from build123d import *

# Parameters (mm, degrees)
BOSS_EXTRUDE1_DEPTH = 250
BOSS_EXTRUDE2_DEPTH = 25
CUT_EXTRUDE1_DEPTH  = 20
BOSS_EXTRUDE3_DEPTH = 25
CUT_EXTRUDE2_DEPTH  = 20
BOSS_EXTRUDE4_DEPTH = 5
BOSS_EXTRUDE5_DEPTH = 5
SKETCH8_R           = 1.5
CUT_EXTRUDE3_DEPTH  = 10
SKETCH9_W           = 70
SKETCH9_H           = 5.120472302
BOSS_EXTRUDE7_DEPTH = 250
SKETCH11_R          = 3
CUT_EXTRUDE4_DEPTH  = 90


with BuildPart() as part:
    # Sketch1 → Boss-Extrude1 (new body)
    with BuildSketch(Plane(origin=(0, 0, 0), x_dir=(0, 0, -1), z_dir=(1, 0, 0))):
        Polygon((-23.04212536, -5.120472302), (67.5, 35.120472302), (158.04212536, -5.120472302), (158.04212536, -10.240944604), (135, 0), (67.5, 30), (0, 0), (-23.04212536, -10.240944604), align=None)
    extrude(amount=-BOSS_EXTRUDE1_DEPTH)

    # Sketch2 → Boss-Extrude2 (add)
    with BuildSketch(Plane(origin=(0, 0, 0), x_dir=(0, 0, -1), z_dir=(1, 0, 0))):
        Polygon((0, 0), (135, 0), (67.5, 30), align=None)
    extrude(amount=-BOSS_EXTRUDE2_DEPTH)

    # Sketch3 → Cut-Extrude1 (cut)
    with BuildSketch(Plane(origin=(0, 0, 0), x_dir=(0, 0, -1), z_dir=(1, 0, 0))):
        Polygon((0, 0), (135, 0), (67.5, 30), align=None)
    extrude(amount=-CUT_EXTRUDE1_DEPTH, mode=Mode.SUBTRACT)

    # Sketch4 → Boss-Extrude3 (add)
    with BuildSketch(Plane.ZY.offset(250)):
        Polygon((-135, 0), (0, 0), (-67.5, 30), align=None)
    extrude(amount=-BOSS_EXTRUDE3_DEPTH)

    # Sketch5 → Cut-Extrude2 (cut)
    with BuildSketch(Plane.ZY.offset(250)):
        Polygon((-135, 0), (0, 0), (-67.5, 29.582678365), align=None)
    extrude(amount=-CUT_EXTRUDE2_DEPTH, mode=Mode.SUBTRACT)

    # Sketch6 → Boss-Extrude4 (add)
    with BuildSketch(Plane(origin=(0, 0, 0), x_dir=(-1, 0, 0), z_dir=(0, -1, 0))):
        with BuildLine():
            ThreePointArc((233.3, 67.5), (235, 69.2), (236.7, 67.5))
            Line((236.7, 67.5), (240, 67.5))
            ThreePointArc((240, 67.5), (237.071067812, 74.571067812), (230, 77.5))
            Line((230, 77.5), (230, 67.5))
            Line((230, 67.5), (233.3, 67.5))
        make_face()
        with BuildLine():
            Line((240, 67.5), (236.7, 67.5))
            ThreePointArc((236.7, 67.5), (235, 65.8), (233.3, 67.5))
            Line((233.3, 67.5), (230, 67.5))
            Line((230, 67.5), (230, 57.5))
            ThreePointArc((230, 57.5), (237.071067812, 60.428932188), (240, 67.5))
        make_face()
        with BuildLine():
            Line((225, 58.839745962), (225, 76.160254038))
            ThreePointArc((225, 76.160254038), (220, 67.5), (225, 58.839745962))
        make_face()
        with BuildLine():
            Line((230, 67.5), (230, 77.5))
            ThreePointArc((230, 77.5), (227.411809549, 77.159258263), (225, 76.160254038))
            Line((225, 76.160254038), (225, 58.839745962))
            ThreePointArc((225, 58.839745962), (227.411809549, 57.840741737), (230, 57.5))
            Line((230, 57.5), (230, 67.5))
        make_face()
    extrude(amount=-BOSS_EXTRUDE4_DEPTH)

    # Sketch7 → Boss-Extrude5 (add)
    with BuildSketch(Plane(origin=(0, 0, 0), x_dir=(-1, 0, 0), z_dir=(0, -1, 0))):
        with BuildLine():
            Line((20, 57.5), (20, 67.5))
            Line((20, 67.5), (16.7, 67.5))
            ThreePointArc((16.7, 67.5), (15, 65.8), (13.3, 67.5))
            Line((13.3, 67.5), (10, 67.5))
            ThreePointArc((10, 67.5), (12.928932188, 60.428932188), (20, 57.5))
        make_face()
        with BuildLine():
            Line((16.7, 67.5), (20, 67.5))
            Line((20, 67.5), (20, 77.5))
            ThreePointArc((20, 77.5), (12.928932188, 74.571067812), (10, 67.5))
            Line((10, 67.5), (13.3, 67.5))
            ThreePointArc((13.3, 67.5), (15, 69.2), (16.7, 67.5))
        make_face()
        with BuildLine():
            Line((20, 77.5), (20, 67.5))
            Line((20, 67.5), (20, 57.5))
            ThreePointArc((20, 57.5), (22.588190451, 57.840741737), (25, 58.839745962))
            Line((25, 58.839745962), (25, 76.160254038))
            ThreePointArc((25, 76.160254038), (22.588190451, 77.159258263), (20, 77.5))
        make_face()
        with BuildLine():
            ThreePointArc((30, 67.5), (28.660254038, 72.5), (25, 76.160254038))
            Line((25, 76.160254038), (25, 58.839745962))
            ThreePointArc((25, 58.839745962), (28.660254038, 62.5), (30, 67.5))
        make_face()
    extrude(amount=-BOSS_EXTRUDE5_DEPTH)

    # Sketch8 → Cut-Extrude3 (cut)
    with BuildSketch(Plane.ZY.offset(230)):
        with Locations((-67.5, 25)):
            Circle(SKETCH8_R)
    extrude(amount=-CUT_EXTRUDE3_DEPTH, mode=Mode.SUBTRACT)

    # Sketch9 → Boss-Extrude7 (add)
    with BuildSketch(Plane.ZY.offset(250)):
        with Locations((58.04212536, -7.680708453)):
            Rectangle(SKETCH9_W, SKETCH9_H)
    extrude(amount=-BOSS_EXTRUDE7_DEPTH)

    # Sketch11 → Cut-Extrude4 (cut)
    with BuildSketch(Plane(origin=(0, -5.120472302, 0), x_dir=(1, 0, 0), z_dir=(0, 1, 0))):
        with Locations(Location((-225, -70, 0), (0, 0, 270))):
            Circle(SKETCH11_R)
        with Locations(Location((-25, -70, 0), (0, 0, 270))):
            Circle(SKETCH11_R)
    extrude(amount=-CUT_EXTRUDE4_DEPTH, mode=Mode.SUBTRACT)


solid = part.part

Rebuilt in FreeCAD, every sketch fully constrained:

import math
import FreeCAD as App
import Part
import Sketcher
Q = App.Units.Quantity


def add_polygon(sketch, points):
    """Adds a closed chain of lines whose ends are joined by coincident constraints."""
    first, n = sketch.GeometryCount, len(points)
    for a, b in zip(points, points[1:] + points[:1]):
        sketch.addGeometry(Part.LineSegment(App.Vector(*a, 0), App.Vector(*b, 0)), False)
    for i in range(n):
        sketch.addConstraint(Sketcher.Constraint("Coincident", first + i, 2, first + (i + 1) % n, 1))

doc = App.newDocument("Part")
body = doc.addObject("PartDesign::Body", "Body")

sketch1 = body.newObject("Sketcher::SketchObject", "Sketch")
sketch1.AttachmentSupport = (doc.getObject("YZ_Plane"), [""])
sketch1.MapMode = "FlatFace"
add_polygon(sketch1, [(35, -68), (-5, 23), (-10, 23), (0, 0), (30, -68), (0, -135), (-10, -158), (-5, -158)])
sketch1.addConstraint([
    Sketcher.Constraint("Horizontal", 1),
    Sketcher.Constraint("Horizontal", 6),
    Sketcher.Constraint("Coincident", 2, 2, -1, 1),
    Sketcher.Constraint("PointOnObject", 4, 2, -2),
    Sketcher.Constraint("Parallel", 0, 2),
    Sketcher.Constraint("Parallel", 2, 3),
    Sketcher.Constraint("Parallel", 4, 5),
    Sketcher.Constraint("Parallel", 5, 7),
    Sketcher.Constraint("Horizontal", 3, 2, 7, 2),
    Sketcher.Constraint("Vertical", 1, 2, 5, 2),
    Sketcher.Constraint("Equal", 3, 4),
    Sketcher.Constraint("DistanceX", -1, 1, 3, 2, Q("30 mm")),
    Sketcher.Constraint("DistanceY", 4, 2, -1, 1, Q("135 mm")),
    Sketcher.Constraint("Distance", 2, Q("25.215402 mm")),
    Sketcher.Constraint("DistanceX", 1, 2, 1, 1, Q("5.120472 mm")),
])
pad1 = body.newObject("PartDesign::Pad", "Pad")
pad1.Profile = sketch1
pad1.Length = 250
pad1.Reversed = True

sketch2 = body.newObject("Sketcher::SketchObject", "Sketch001")
sketch2.AttachmentSupport = (doc.getObject("YZ_Plane"), [""])
sketch2.MapMode = "FlatFace"
add_polygon(sketch2, [(0, 0), (0, -135), (30, -68)])
sketch2.addConstraint([
    Sketcher.Constraint("Vertical", 0),
    Sketcher.Constraint("Coincident", 2, 2, -1, 1),
    Sketcher.Constraint("Equal", 1, 2),
    Sketcher.Constraint("DistanceY", 0, 2, 0, 1, Q("135 mm")),
    Sketcher.Constraint("DistanceX", -1, 1, 1, 2, Q("30 mm")),
])
pad2 = body.newObject("PartDesign::Pad", "Pad001")
pad2.Profile = sketch2
pad2.Length = 25
pad2.Reversed = True

sketch3 = body.newObject("Sketcher::SketchObject", "Sketch002")
sketch3.AttachmentSupport = (doc.getObject("YZ_Plane"), [""])
sketch3.MapMode = "FlatFace"
add_polygon(sketch3, [(0, 0), (0, -135), (30, -68)])
sketch3.addConstraint([
    Sketcher.Constraint("Vertical", 0),
    Sketcher.Constraint("Coincident", 2, 2, -1, 1),
    Sketcher.Constraint("Equal", 1, 2),
    Sketcher.Constraint("DistanceY", 0, 2, 0, 1, Q("135 mm")),
    Sketcher.Constraint("DistanceX", -1, 1, 1, 2, Q("30 mm")),
])
pocket1 = body.newObject("PartDesign::Pocket", "Pocket")
pocket1.Profile = sketch3
pocket1.Length = 20

sketch4 = body.newObject("Sketcher::SketchObject", "Sketch003")
sketch4.AttachmentSupport = (doc.getObject("YZ_Plane"), [""])
sketch4.MapMode = "FlatFace"
sketch4.AttachmentOffset = App.Placement(App.Vector(0, 0, -250), App.Rotation())
add_polygon(sketch4, [(0, -135), (0, 0), (30, -68)])
sketch4.addConstraint([
    Sketcher.Constraint("Vertical", 0),
    Sketcher.Constraint("Coincident", 0, 2, -1, 1),
    Sketcher.Constraint("Equal", 1, 2),
    Sketcher.Constraint("DistanceY", 0, 1, 0, 2, Q("135 mm")),
    Sketcher.Constraint("DistanceX", -1, 1, 1, 2, Q("30 mm")),
])
pad3 = body.newObject("PartDesign::Pad", "Pad002")
pad3.Profile = sketch4
pad3.Length = 25

sketch5 = body.newObject("Sketcher::SketchObject", "Sketch004")
sketch5.AttachmentSupport = (doc.getObject("YZ_Plane"), [""])
sketch5.MapMode = "FlatFace"
sketch5.AttachmentOffset = App.Placement(App.Vector(0, 0, -250), App.Rotation())
add_polygon(sketch5, [(0, -135), (0, 0), (30, -68)])
sketch5.addConstraint([
    Sketcher.Constraint("Vertical", 0),
    Sketcher.Constraint("Coincident", 0, 2, -1, 1),
    Sketcher.Constraint("Equal", 1, 2),
    Sketcher.Constraint("DistanceY", 0, 1, 0, 2, Q("135 mm")),
    Sketcher.Constraint("Distance", 1, Q("73.69793 mm")),
])
pocket2 = body.newObject("PartDesign::Pocket", "Pocket001")
pocket2.Profile = sketch5
pocket2.Length = 20
pocket2.Reversed = True

sketch6 = body.newObject("Sketcher::SketchObject", "Sketch005")
sketch6.AttachmentSupport = (doc.getObject("XZ_Plane"), [""])
sketch6.MapMode = "FlatFace"
sketch6.addGeometry([
    Part.ArcOfCircle(Part.Circle(App.Vector(-230, -67.5, 0), App.Vector(0, 0, 1), 10), math.radians(90), math.radians(180)),
    Part.ArcOfCircle(Part.Circle(App.Vector(-230, -67.5, 0), App.Vector(0, 0, 1), 10), math.radians(180), math.radians(270)),
    Part.ArcOfCircle(Part.Circle(App.Vector(-230, -67.5, 0), App.Vector(0, 0, 1), 10), math.radians(-90), math.radians(-60)),
    Part.ArcOfCircle(Part.Circle(App.Vector(-230, -67.5, 0), App.Vector(0, 0, 1), 10), math.radians(-60), math.radians(60)),
    Part.ArcOfCircle(Part.Circle(App.Vector(-230, -67.5, 0), App.Vector(0, 0, 1), 10), math.radians(60), math.radians(90)),
    Part.Circle(App.Vector(-235, -67.5, 0), App.Vector(0, 0, 1), 1.7),
], False)
sketch6.addConstraint([
    Sketcher.Constraint("Tangent", 0, 2, 1, 1),
    Sketcher.Constraint("Tangent", 1, 2, 2, 1),
    Sketcher.Constraint("Tangent", 2, 2, 3, 1),
    Sketcher.Constraint("Tangent", 3, 2, 4, 1),
    Sketcher.Constraint("Tangent", 4, 2, 0, 1),
    Sketcher.Constraint("Coincident", 2, 3, 0, 3),
    Sketcher.Constraint("Horizontal", 4, 3, 5, 3),
    Sketcher.Constraint("Horizontal", 5, 3, 0, 2),
    Sketcher.Constraint("Vertical", 4, 3, 1, 2),
    Sketcher.Constraint("Vertical", 2, 2, 3, 2),
    Sketcher.Constraint("Vertical", 1, 2, 4, 2),
    Sketcher.Constraint("Radius", 0, Q("10 mm")),
    Sketcher.Constraint("Diameter", 5, Q("3.4 mm")),
    Sketcher.Constraint("DistanceX", 0, 3, -1, 1, Q("230 mm")),
    Sketcher.Constraint("DistanceX", 5, 3, -1, 1, Q("235 mm")),
    Sketcher.Constraint("DistanceX", 2, 2, -1, 1, Q("225 mm")),
    Sketcher.Constraint("DistanceY", 0, 3, -1, 1, Q("67.5 mm")),
])
pad4 = body.newObject("PartDesign::Pad", "Pad003")
pad4.Profile = sketch6
pad4.Length = 5
pad4.Reversed = True

sketch7 = body.newObject("Sketcher::SketchObject", "Sketch006")
sketch7.AttachmentSupport = (doc.getObject("XZ_Plane"), [""])
sketch7.MapMode = "FlatFace"
sketch7.addGeometry([
    Part.ArcOfCircle(Part.Circle(App.Vector(-20, -67.5, 0), App.Vector(0, 0, 1), 10), math.radians(-90), math.radians(0)),
    Part.ArcOfCircle(Part.Circle(App.Vector(-20, -67.5, 0), App.Vector(0, 0, 1), 10), math.radians(0), math.radians(90)),
    Part.ArcOfCircle(Part.Circle(App.Vector(-20, -67.5, 0), App.Vector(0, 0, 1), 10), math.radians(90), math.radians(120)),
    Part.ArcOfCircle(Part.Circle(App.Vector(-20, -67.5, 0), App.Vector(0, 0, 1), 10), math.radians(120), math.radians(180)),
    Part.ArcOfCircle(Part.Circle(App.Vector(-20, -67.5, 0), App.Vector(0, 0, 1), 10), math.radians(180), math.radians(240)),
    Part.ArcOfCircle(Part.Circle(App.Vector(-20, -67.5, 0), App.Vector(0, 0, 1), 10), math.radians(-120), math.radians(-90)),
    Part.Circle(App.Vector(-15, -67.5, 0), App.Vector(0, 0, 1), 1.7),
], False)
sketch7.addConstraint([
    Sketcher.Constraint("Tangent", 0, 2, 1, 1),
    Sketcher.Constraint("Tangent", 1, 2, 2, 1),
    Sketcher.Constraint("Tangent", 2, 2, 3, 1),
    Sketcher.Constraint("Tangent", 3, 2, 4, 1),
    Sketcher.Constraint("Tangent", 4, 2, 5, 1),
    Sketcher.Constraint("Tangent", 5, 2, 0, 1),
    Sketcher.Constraint("Coincident", 2, 3, 0, 3),
    Sketcher.Constraint("Equal", 2, 3),
    Sketcher.Constraint("Horizontal", 5, 3, 6, 3),
    Sketcher.Constraint("Horizontal", 6, 3, 0, 2),
    Sketcher.Constraint("Horizontal", 0, 2, 3, 2),
    Sketcher.Constraint("Vertical", 5, 3, 1, 2),
    Sketcher.Constraint("Vertical", 2, 2, 4, 2),
    Sketcher.Constraint("Vertical", 1, 2, 5, 2),
    Sketcher.Constraint("Radius", 0, Q("10 mm")),
    Sketcher.Constraint("Diameter", 6, Q("3.4 mm")),
    Sketcher.Constraint("DistanceX", 0, 3, -1, 1, Q("20 mm")),
    Sketcher.Constraint("DistanceX", 6, 3, -1, 1, Q("15 mm")),
    Sketcher.Constraint("DistanceX", 2, 2, -1, 1, Q("25 mm")),
    Sketcher.Constraint("DistanceY", 0, 3, -1, 1, Q("67.5 mm")),
])
pad5 = body.newObject("PartDesign::Pad", "Pad004")
pad5.Profile = sketch7
pad5.Length = 5
pad5.Reversed = True

sketch8 = body.newObject("Sketcher::SketchObject", "Sketch007")
sketch8.AttachmentSupport = (doc.getObject("YZ_Plane"), [""])
sketch8.MapMode = "FlatFace"
sketch8.AttachmentOffset = App.Placement(App.Vector(0, 0, -230), App.Rotation())
sketch8.addGeometry(Part.Circle(App.Vector(25, -67.5, 0), App.Vector(0, 0, 1), 1.5), False)
sketch8.addConstraint([
    Sketcher.Constraint("Diameter", 0, Q("3 mm")),
    Sketcher.Constraint("DistanceX", -1, 1, 0, 3, Q("25 mm")),
    Sketcher.Constraint("DistanceY", 0, 3, -1, 1, Q("67.5 mm")),
])
pocket3 = body.newObject("PartDesign::Pocket", "Pocket002")
pocket3.Profile = sketch8
pocket3.Length = 10
pocket3.Reversed = True

sketch9 = body.newObject("Sketcher::SketchObject", "Sketch008")
sketch9.AttachmentSupport = (doc.getObject("YZ_Plane"), [""])
sketch9.MapMode = "FlatFace"
sketch9.AttachmentOffset = App.Placement(App.Vector(0, 0, -250), App.Rotation())
add_polygon(sketch9, [(-5, 23), (-10, 23), (-10, 93), (-5, 93)])
sketch9.addConstraint([
    Sketcher.Constraint("Horizontal", 0),
    Sketcher.Constraint("Vertical", 1),
    Sketcher.Constraint("Horizontal", 2),
    Sketcher.Constraint("Vertical", 3),
    Sketcher.Constraint("DistanceY", 1, 1, 1, 2, Q("70 mm")),
    Sketcher.Constraint("DistanceX", 0, 2, 0, 1, Q("5.120472 mm")),
    Sketcher.Constraint("DistanceX", 0, 2, -1, 1, Q("10.240945 mm")),
    Sketcher.Constraint("DistanceY", -1, 1, 0, 2, Q("23.042125 mm")),
])
pad6 = body.newObject("PartDesign::Pad", "Pad005")
pad6.Profile = sketch9
pad6.Length = 250

sketch10 = body.newObject("Sketcher::SketchObject", "Sketch009")
sketch10.AttachmentSupport = (doc.getObject("XZ_Plane"), [""])
sketch10.MapMode = "FlatFace"
sketch10.AttachmentOffset = App.Placement(App.Vector(0, 0, 5.120472), App.Rotation())
sketch10.addGeometry([
    Part.Circle(App.Vector(-225, 70, 0), App.Vector(0, 0, 1), 3),
    Part.Circle(App.Vector(-25, 70, 0), App.Vector(0, 0, 1), 3),
], False)
sketch10.addConstraint([
    Sketcher.Constraint("Equal", 0, 1),
    Sketcher.Constraint("Horizontal", 0, 3, 1, 3),
    Sketcher.Constraint("Diameter", 0, Q("6 mm")),
    Sketcher.Constraint("DistanceX", 0, 3, -1, 1, Q("225 mm")),
    Sketcher.Constraint("DistanceY", -1, 1, 0, 3, Q("70 mm")),
    Sketcher.Constraint("DistanceX", 1, 3, -1, 1, Q("25 mm")),
])
pocket4 = body.newObject("PartDesign::Pocket", "Pocket003")
pocket4.Profile = sketch10
pocket4.Length = 90
pocket4.Reversed = True

doc.recompute()
